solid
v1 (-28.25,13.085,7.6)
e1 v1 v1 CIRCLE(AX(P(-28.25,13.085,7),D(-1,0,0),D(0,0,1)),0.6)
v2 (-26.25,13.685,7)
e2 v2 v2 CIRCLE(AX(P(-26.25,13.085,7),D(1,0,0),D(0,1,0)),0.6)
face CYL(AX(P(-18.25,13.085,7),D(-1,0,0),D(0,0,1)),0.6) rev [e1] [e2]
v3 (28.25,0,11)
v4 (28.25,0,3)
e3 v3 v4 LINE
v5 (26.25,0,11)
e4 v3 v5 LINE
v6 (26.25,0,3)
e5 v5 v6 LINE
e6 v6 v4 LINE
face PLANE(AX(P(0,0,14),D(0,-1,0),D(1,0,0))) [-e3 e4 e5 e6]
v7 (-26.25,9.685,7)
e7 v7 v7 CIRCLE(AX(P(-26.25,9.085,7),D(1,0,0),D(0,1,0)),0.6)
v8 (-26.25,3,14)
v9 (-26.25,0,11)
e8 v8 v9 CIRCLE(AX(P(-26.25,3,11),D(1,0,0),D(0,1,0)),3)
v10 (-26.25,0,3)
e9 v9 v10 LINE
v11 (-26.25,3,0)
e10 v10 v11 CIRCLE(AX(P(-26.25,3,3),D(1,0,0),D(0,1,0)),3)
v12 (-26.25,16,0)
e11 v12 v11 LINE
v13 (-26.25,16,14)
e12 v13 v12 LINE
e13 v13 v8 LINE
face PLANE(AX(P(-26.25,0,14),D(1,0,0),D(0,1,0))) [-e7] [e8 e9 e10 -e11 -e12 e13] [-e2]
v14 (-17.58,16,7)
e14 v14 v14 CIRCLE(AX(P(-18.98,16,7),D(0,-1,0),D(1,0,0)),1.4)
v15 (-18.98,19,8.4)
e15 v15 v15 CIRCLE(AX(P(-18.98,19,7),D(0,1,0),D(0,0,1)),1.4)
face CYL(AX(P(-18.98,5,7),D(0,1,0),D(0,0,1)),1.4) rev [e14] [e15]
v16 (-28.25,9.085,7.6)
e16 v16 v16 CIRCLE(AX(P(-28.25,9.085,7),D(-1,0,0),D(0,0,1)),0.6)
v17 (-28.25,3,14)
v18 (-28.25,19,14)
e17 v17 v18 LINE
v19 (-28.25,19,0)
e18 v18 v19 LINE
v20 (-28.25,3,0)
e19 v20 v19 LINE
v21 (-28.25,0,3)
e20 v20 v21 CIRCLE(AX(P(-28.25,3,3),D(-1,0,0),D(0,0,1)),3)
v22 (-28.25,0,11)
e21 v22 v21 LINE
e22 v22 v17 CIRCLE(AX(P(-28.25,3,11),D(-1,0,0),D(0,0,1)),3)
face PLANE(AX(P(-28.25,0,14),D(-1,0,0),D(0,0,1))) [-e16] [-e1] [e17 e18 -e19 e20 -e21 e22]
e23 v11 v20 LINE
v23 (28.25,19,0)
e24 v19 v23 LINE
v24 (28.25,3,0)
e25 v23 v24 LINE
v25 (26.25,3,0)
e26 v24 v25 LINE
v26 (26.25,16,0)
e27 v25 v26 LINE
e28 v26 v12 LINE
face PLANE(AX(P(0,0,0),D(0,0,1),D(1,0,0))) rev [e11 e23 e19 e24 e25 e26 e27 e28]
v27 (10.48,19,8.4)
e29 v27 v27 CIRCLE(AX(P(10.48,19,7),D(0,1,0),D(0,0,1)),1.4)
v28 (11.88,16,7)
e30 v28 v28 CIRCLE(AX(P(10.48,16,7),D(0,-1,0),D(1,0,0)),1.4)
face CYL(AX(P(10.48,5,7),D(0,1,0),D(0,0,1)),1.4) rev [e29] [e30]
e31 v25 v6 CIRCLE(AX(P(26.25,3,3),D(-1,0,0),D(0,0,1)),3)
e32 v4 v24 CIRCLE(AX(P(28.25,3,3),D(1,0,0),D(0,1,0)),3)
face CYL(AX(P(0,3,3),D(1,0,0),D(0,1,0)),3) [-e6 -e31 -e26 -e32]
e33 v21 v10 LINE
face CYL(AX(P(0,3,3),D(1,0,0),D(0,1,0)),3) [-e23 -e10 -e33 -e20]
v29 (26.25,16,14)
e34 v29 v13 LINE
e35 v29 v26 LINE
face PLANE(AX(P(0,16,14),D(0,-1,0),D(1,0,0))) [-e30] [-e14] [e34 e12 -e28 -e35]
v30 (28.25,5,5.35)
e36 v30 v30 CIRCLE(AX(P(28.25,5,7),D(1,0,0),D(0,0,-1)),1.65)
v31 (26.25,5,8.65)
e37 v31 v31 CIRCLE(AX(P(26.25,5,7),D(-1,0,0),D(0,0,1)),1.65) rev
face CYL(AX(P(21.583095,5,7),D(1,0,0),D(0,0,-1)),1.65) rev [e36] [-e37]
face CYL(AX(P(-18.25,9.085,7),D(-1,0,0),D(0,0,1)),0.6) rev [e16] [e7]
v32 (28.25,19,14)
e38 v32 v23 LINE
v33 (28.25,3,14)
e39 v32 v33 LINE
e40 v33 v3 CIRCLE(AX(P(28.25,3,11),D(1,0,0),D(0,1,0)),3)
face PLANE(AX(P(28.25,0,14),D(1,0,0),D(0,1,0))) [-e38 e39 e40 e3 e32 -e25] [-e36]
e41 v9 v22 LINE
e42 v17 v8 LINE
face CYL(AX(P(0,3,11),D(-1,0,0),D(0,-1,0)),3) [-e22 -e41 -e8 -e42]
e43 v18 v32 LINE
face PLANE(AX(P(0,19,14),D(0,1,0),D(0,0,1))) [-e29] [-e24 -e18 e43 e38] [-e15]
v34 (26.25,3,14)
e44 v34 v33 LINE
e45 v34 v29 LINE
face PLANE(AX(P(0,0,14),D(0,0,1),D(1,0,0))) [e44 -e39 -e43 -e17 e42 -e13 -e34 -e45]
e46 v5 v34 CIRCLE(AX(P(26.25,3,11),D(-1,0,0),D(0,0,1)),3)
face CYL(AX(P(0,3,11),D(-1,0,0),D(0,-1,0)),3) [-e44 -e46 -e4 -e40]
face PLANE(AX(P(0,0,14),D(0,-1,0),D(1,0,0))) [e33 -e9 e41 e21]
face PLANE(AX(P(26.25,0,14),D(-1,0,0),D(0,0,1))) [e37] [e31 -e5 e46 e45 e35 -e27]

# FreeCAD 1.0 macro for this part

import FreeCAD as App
import Part
import Sketcher

V = App.Vector
Q = App.Units.Quantity


def edges_at(feature, points):
    """Names of the edges that pass closest to the given points."""
    edges = feature.Shape.Edges
    near = lambda p: min(range(len(edges)), key=lambda i: edges[i].distToShape(Part.Vertex(*p))[0])
    return sorted({f"Edge{near(p) + 1}" for p in points})


def add_polygon(sketch, points):
    """Adds a closed chain of lines whose ends are joined by coincident constraints."""
    first, n = sketch.GeometryCount, len(points)
    for a, b in zip(points, points[1:] + points[:1]):
        sketch.addGeometry(Part.LineSegment(App.Vector(*a, 0), App.Vector(*b, 0)), False)
    for i in range(n):
        sketch.addConstraint(Sketcher.Constraint("Coincident", first + i, 2, first + (i + 1) % n, 1))

doc = App.newDocument("Part")
params = doc.addObject("Spreadsheet::Sheet", "Params")
for row, (alias, value) in enumerate([
    ("sketch1_width", "2 mm"),
    ("sketch1_height", "19 mm"),
    ("sketch1_height2", "16 mm"),
    ("sketch1_width2", "52.5 mm"),
    ("pad1_length", "14 mm"),
    ("sketch2_diameter", "3.3 mm"),
    ("pocket1_length", "2 mm"),
    ("sketch3_diameter", "2.8 mm"),
    ("pocket2_length", "14 mm"),
    ("fillet_radius", "3 mm"),
    ("sketch4_diameter", "1.2 mm"),
    ("pocket3_length", "10 mm"),
], start=1):
    params.set(f"A{row}", alias)
    params.set(f"B{row}", "=" + value)
    params.setAlias(f"B{row}", alias)

body = doc.addObject("PartDesign::Body", "Body")

sketch1 = body.newObject("Sketcher::SketchObject", "Sketch")
sketch1.AttachmentSupport = (doc.getObject("XY_Plane"), [""])
sketch1.MapMode = "FlatFace"
add_polygon(sketch1, [(-28.25, 19), (-28.25, 0), (-26.25, 0), (-26.25, 16), (26.25, 16), (26.25, 0), (28.25, 0), (28.25, 19)])
sketch1.addConstraint(Sketcher.Constraint("Vertical", 0))
sketch1.addConstraint(Sketcher.Constraint("Horizontal", 1))
sketch1.addConstraint(Sketcher.Constraint("Vertical", 2))
sketch1.addConstraint(Sketcher.Constraint("Horizontal", 3))
sketch1.addConstraint(Sketcher.Constraint("Vertical", 4))
sketch1.addConstraint(Sketcher.Constraint("Horizontal", 5))
sketch1.addConstraint(Sketcher.Constraint("Vertical", 6))
sketch1.addConstraint(Sketcher.Constraint("Horizontal", 7))
sketch1.addConstraint(Sketcher.Constraint("Symmetric", 1, 2, 4, 2, -1, 1))
sketch1.addConstraint(Sketcher.Constraint("Symmetric", 0, 2, 5, 2, -2))
sketch1.addConstraint(Sketcher.Constraint("DistanceX", 1, 1, 1, 2, Q("2 mm")))
sketch1.addConstraint(Sketcher.Constraint("DistanceY", 0, 2, 0, 1, Q("19 mm")))
sketch1.addConstraint(Sketcher.Constraint("DistanceY", 2, 1, 2, 2, Q("16 mm")))
sketch1.addConstraint(Sketcher.Constraint("DistanceX", 3, 1, 3, 2, Q("52.5 mm")))
sketch1.setExpression("Constraints[18]", "Params.sketch1_width")
sketch1.setExpression("Constraints[19]", "Params.sketch1_height")
sketch1.setExpression("Constraints[20]", "Params.sketch1_height2")
sketch1.setExpression("Constraints[21]", "Params.sketch1_width2")
pad1 = body.newObject("PartDesign::Pad", "Pad")
pad1.Profile = sketch1
pad1.setExpression("Length", "Params.pad1_length")

sketch2 = body.newObject("Sketcher::SketchObject", "Sketch001")
sketch2.AttachmentSupport = (doc.getObject("YZ_Plane"), [""])
sketch2.MapMode = "FlatFace"
sketch2.AttachmentOffset = App.Placement(V(0, 0, 28.25), App.Rotation())
sketch2.addGeometry(Part.Circle(V(5, 7, 0), V(0, 0, 1), 1.65), False)
sketch2.addConstraint(Sketcher.Constraint("Diameter", 0, Q("3.3 mm")))
sketch2.addConstraint(Sketcher.Constraint("DistanceX", -1, 1, 0, 3, Q("5 mm")))
sketch2.addConstraint(Sketcher.Constraint("DistanceY", -1, 1, 0, 3, Q("7 mm")))
sketch2.setExpression("Constraints[0]", "Params.sketch2_diameter")
pocket1 = body.newObject("PartDesign::Pocket", "Pocket")
pocket1.Profile = sketch2
pocket1.setExpression("Length", "Params.pocket1_length")

sketch3 = body.newObject("Sketcher::SketchObject", "Sketch002")
sketch3.AttachmentSupport = (doc.getObject("XZ_Plane"), [""])
sketch3.MapMode = "FlatFace"
sketch3.AttachmentOffset = App.Placement(V(0, 0, -19), App.Rotation())
sketch3.addGeometry(Part.Circle(V(-18.98, 7, 0), V(0, 0, 1), 1.4), False)
sketch3.addGeometry(Part.Circle(V(10.48, 7, 0), V(0, 0, 1), 1.4), False)
sketch3.addConstraint(Sketcher.Constraint("Equal", 0, 1))
sketch3.addConstraint(Sketcher.Constraint("Horizontal", 0, 3, 1, 3))
sketch3.addConstraint(Sketcher.Constraint("Diameter", 0, Q("2.8 mm")))
sketch3.addConstraint(Sketcher.Constraint("DistanceY", -1, 1, 0, 3, Q("7 mm")))
sketch3.addConstraint(Sketcher.Constraint("DistanceX", 0, 3, -1, 1, Q("18.98 mm")))
sketch3.addConstraint(Sketcher.Constraint("DistanceX", -1, 1, 1, 3, Q("10.48 mm")))
sketch3.setExpression("Constraints[2]", "Params.sketch3_diameter")
pocket2 = body.newObject("PartDesign::Pocket", "Pocket001")
pocket2.Profile = sketch3
pocket2.setExpression("Length", "Params.pocket2_length")
pocket2.Reversed = True
doc.recompute()

fillet = body.newObject("PartDesign::Fillet", "Fillet")
fillet.Base = (pocket2, edges_at(pocket2, [
    (-27.25, 0, 0),
    (27.25, 0, 0),
    (27.25, 0, 14),
    (-27.25, 0, 14),
]))
fillet.setExpression("Radius", "Params.fillet_radius")

sketch4 = body.newObject("Sketcher::SketchObject", "Sketch003")
sketch4.AttachmentSupport = (doc.getObject("YZ_Plane"), [""])
sketch4.MapMode = "FlatFace"
sketch4.AttachmentOffset = App.Placement(V(0, 0, -28.25), App.Rotation())
sketch4.addGeometry(Part.Circle(V(9.085, 7, 0), V(0, 0, 1), 0.6), False)
sketch4.addGeometry(Part.Circle(V(13.085, 7, 0), V(0, 0, 1), 0.6), False)
sketch4.addConstraint(Sketcher.Constraint("Equal", 0, 1))
sketch4.addConstraint(Sketcher.Constraint("Horizontal", 0, 3, 1, 3))
sketch4.addConstraint(Sketcher.Constraint("Diameter", 0, Q("1.2 mm")))
sketch4.addConstraint(Sketcher.Constraint("DistanceY", -1, 1, 0, 3, Q("7 mm")))
sketch4.addConstraint(Sketcher.Constraint("DistanceX", 0, 3, 1, 3, Q("4 mm")))
sketch4.addConstraint(Sketcher.Constraint("DistanceX", -1, 1, 0, 3, Q("9.085 mm")))
sketch4.setExpression("Constraints[2]", "Params.sketch4_diameter")
pocket3 = body.newObject("PartDesign::Pocket", "Pocket002")
pocket3.Profile = sketch4
pocket3.setExpression("Length", "Params.pocket3_length")
pocket3.Reversed = True

doc.recompute()
